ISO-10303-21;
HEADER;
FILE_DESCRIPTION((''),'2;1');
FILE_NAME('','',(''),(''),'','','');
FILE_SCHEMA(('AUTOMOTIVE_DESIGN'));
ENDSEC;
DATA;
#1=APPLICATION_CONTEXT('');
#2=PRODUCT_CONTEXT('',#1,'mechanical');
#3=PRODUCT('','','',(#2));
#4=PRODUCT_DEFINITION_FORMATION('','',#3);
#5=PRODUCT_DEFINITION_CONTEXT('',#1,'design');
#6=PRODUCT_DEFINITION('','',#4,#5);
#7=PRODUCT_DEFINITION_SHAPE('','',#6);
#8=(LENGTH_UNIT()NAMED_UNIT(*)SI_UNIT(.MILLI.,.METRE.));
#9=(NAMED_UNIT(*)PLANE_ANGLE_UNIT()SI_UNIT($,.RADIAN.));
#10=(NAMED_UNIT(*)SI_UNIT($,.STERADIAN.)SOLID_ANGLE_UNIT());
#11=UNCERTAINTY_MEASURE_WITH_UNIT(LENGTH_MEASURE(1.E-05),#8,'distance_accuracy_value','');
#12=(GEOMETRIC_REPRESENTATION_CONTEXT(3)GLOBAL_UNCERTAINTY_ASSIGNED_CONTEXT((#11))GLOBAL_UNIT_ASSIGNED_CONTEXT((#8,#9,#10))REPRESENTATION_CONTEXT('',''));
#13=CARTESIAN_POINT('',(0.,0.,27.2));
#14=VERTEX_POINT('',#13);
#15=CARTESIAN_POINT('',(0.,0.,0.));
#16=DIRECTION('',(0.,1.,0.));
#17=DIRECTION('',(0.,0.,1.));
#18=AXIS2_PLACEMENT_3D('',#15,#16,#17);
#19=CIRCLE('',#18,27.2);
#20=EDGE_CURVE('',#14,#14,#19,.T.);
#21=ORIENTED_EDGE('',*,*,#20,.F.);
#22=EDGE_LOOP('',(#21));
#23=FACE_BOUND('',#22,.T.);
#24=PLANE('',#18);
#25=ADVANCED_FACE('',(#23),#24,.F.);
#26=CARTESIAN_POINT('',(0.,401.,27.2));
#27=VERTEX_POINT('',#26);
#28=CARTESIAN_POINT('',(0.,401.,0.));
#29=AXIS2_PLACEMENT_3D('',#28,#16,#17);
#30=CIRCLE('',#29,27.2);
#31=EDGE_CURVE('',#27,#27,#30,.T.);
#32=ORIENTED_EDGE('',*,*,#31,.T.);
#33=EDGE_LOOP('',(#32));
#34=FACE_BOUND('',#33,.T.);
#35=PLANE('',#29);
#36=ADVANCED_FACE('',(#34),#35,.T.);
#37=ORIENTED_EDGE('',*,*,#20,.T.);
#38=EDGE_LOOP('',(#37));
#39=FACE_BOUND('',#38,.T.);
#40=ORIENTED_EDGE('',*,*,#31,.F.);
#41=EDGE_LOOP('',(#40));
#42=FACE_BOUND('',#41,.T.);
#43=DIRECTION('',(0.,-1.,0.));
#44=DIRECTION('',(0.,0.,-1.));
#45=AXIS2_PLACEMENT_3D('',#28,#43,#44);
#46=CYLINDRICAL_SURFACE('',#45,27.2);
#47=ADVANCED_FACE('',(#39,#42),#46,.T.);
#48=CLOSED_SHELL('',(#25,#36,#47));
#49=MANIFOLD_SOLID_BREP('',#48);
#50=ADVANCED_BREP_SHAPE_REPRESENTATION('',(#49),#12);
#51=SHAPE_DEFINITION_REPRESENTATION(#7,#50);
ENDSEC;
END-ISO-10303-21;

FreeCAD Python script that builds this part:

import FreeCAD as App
import Part
import Sketcher

V = App.Vector
Q = App.Units.Quantity

doc = App.newDocument("Part")
body = doc.addObject("PartDesign::Body", "Body")

# Sketch on XZ plane
sketch1 = body.newObject("Sketcher::SketchObject", "Sketch")
sketch1.AttachmentSupport = (doc.getObject("XZ_Plane"), [""])
sketch1.MapMode = "FlatFace"
sketch1.addGeometry(Part.Circle(V(0, 0, 0), V(0, 0, 1), 27.2), False)
sketch1.addConstraint(Sketcher.Constraint("Coincident", 0, 3, -1, 1))
sketch1.addConstraint(Sketcher.Constraint("Diameter", 0, Q("54.4 mm")))
pad1 = body.newObject("PartDesign::Pad", "Pad")
pad1.Profile = sketch1
pad1.Length = 401
pad1.Reversed = True

doc.recompute()
